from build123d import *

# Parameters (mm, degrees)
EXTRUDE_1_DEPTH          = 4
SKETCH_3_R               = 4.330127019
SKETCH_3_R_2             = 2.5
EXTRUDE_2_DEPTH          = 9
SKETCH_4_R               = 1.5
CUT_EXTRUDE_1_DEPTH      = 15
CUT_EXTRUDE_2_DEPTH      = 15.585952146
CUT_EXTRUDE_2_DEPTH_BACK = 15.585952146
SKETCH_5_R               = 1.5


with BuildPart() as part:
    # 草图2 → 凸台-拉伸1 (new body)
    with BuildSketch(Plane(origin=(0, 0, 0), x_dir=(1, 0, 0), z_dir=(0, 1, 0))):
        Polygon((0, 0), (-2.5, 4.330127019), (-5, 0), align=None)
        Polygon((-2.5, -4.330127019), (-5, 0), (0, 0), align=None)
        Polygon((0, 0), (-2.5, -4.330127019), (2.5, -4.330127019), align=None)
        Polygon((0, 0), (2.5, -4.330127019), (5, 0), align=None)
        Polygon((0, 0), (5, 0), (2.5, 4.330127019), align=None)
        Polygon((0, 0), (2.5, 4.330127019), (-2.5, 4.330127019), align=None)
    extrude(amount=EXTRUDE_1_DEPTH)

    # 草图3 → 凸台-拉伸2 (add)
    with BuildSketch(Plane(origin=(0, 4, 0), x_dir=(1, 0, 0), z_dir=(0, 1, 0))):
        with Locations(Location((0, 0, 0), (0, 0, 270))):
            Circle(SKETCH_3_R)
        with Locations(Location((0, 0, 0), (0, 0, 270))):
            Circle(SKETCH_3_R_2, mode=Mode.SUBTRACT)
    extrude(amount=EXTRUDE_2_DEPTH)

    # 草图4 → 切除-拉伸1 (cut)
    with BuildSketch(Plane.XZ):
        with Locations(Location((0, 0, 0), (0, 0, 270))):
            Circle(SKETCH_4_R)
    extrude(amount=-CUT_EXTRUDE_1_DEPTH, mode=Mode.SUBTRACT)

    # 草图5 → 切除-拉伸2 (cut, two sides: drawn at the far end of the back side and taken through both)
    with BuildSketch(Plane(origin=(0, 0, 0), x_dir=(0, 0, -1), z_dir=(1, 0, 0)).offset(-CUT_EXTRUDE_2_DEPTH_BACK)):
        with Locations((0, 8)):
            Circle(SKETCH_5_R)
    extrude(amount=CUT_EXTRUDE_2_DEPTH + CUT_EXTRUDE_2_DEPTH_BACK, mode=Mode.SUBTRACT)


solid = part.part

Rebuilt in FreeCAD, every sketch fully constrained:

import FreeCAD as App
import Part
import Sketcher
from FreeCAD import Vector
Q = App.Units.Quantity

doc = App.newDocument("Part")
body = doc.addObject("PartDesign::Body", "Body")

# Sketch on XZ plane
sketch1 = body.newObject("Sketcher::SketchObject", "Sketch")
sketch1.AttachmentSupport = (doc.getObject("XZ_Plane"), [""])
sketch1.MapMode = "FlatFace"
sketch1.addGeometry([
    Part.LineSegment(Vector(-2.5, -4.330127, 0), Vector(-5, 0, 0)),  # 0
    Part.LineSegment(Vector(-5, 0, 0), Vector(-2.5, 4.330127, 0)),  # 1
    Part.LineSegment(Vector(-2.5, 4.330127, 0), Vector(2.5, 4.330127, 0)),  # 2
    Part.LineSegment(Vector(2.5, 4.330127, 0), Vector(5, 0, 0)),  # 3
    Part.LineSegment(Vector(5, 0, 0), Vector(2.5, -4.330127, 0)),  # 4
    Part.LineSegment(Vector(2.5, -4.330127, 0), Vector(-2.5, -4.330127, 0)),  # 5
], False)
sketch1.addConstraint([
    Sketcher.Constraint("Coincident", 0, 2, 1, 1),
    Sketcher.Constraint("Coincident", 1, 2, 2, 1),
    Sketcher.Constraint("Coincident", 2, 2, 3, 1),
    Sketcher.Constraint("Coincident", 3, 2, 4, 1),
    Sketcher.Constraint("Coincident", 4, 2, 5, 1),
    Sketcher.Constraint("Coincident", 5, 2, 0, 1),
    Sketcher.Constraint("Horizontal", 2),
    Sketcher.Constraint("Horizontal", 5),
    Sketcher.Constraint("Symmetric", 0, 2, 3, 2, -1, 1),
    Sketcher.Constraint("Symmetric", 1, 2, 4, 2, -1, 1),
    Sketcher.Constraint("PointOnObject", 0, 2, -1),
    Sketcher.Constraint("Parallel", 0, 3),
    Sketcher.Constraint("Vertical", 2, 2, 4, 2),
    Sketcher.Constraint("DistanceX", 2, 1, 2, 2, Q("5 mm")),
    Sketcher.Constraint("Angle", 0, Q("120 deg")),
    Sketcher.Constraint("Distance", 0, Q("5 mm")),
])
pad1 = body.newObject("PartDesign::Pad", "Pad")
pad1.Profile = sketch1
pad1.Length = 4
pad1.Reversed = True

# Sketch on XZ plane
sketch2 = body.newObject("Sketcher::SketchObject", "Sketch001")
sketch2.AttachmentSupport = (doc.getObject("XZ_Plane"), [""])
sketch2.MapMode = "FlatFace"
sketch2.AttachmentOffset = App.Placement(Vector(0, 0, -4), App.Rotation())
sketch2.addGeometry([
    Part.Circle(Vector(0, 0, 0), Vector(0, 0, 1), 4.330127),
    Part.Circle(Vector(0, 0, 0), Vector(0, 0, 1), 2.5),
], False)
sketch2.addConstraint([
    Sketcher.Constraint("Coincident", 0, 3, -1, 1),
    Sketcher.Constraint("Coincident", 1, 3, -1, 1),
    Sketcher.Constraint("Diameter", 1, Q("5 mm")),
    Sketcher.Constraint("Diameter", 0, Q("8.660254 mm")),
])
pad2 = body.newObject("PartDesign::Pad", "Pad001")
pad2.Profile = sketch2
pad2.Length = 9
pad2.Reversed = True

# Sketch on XZ plane
sketch3 = body.newObject("Sketcher::SketchObject", "Sketch002")
sketch3.AttachmentSupport = (doc.getObject("XZ_Plane"), [""])
sketch3.MapMode = "FlatFace"
sketch3.addGeometry(Part.Circle(Vector(0, 0, 0), Vector(0, 0, 1), 1.5), False)
sketch3.addConstraint([
    Sketcher.Constraint("Coincident", 0, 3, -1, 1),
    Sketcher.Constraint("Diameter", 0, Q("3 mm")),
])
pocket1 = body.newObject("PartDesign::Pocket", "Pocket")
pocket1.Profile = sketch3
pocket1.Length = 15

# Sketch on YZ plane
sketch4 = body.newObject("Sketcher::SketchObject", "Sketch003")
sketch4.AttachmentSupport = (doc.getObject("YZ_Plane"), [""])
sketch4.MapMode = "FlatFace"
sketch4.addGeometry(Part.Circle(Vector(8, 0, 0), Vector(0, 0, 1), 1.5), False)
sketch4.addConstraint([
    Sketcher.Constraint("PointOnObject", 0, 3, -1),
    Sketcher.Constraint("Diameter", 0, Q("3 mm")),
    Sketcher.Constraint("DistanceX", -1, 1, 0, 3, Q("8 mm")),
])
pocket2 = body.newObject("PartDesign::Pocket", "Pocket001")
pocket2.Profile = sketch4
pocket2.Type = "ThroughAll"
pocket2.Midplane = True

doc.recompute()
